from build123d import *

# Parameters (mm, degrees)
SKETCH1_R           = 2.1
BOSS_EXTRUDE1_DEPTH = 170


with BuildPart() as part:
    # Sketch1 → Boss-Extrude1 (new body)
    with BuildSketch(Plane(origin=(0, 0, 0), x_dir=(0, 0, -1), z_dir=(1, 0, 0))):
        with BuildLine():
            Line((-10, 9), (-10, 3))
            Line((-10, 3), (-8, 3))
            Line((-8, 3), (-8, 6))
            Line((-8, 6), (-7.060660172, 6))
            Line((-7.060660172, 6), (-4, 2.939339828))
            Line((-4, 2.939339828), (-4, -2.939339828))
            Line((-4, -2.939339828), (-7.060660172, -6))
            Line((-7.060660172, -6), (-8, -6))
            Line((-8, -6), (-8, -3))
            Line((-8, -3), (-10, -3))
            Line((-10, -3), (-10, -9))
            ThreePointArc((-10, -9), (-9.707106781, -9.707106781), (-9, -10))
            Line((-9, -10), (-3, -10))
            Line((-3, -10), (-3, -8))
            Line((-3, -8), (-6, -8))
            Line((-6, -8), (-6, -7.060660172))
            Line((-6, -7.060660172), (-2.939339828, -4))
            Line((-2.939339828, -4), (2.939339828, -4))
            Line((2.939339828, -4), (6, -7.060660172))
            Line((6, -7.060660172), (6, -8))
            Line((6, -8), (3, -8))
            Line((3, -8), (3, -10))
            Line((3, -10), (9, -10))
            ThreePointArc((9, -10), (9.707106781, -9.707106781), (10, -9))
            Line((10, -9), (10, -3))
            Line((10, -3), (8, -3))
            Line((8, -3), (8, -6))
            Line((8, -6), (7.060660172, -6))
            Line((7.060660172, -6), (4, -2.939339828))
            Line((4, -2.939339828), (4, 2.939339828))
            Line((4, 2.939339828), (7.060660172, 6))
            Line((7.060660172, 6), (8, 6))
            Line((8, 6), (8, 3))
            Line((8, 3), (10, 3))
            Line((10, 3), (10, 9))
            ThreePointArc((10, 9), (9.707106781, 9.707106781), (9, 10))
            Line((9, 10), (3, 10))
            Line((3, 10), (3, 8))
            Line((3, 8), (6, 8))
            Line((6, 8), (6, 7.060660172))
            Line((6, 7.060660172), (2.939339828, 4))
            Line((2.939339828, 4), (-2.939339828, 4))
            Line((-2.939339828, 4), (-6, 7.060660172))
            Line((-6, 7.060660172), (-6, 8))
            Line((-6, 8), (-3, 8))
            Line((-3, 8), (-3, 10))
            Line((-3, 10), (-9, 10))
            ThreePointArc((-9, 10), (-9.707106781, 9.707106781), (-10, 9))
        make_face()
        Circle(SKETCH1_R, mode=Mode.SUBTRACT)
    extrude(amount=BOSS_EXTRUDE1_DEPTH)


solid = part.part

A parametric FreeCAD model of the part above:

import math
import FreeCAD as App
import Part
import Sketcher
from FreeCAD import Vector
Q = App.Units.Quantity

doc = App.newDocument("Part")
params = doc.addObject("Spreadsheet::Sheet", "Params")
for row, (alias, value) in enumerate([
    ("sketch1_radius", "1 mm"),
    ("sketch1_diameter", "4.2 mm"),
    ("sketch1_width", "6 mm"),
    ("sketch1_width2", "3 mm"),
    ("sketch1_width3", "2 mm"),
    ("pad1_length", "170 mm"),
], start=1):
    params.set(f"A{row}", alias)
    params.set(f"B{row}", "=" + value)
    params.setAlias(f"B{row}", alias)

body = doc.addObject("PartDesign::Body", "Body")

sketch1 = body.newObject("Sketcher::SketchObject", "Sketch")
sketch1.AttachmentSupport = (doc.getObject("YZ_Plane"), [""])
sketch1.MapMode = "FlatFace"
sketch1.addGeometry([
    Part.LineSegment(Vector(9, 10, 0), Vector(3, 10, 0)),
    Part.LineSegment(Vector(3, 10, 0), Vector(3, 8, 0)),
    Part.LineSegment(Vector(3, 8, 0), Vector(6, 8, 0)),
    Part.LineSegment(Vector(6, 8, 0), Vector(6, 7.1, 0)),
    Part.LineSegment(Vector(6, 7.1, 0), Vector(2.9, 4, 0)),
    Part.LineSegment(Vector(2.9, 4, 0), Vector(-2.9, 4, 0)),
    Part.LineSegment(Vector(-2.9, 4, 0), Vector(-6, 7.1, 0)),
    Part.LineSegment(Vector(-6, 7.1, 0), Vector(-6, 8, 0)),
    Part.LineSegment(Vector(-6, 8, 0), Vector(-3, 8, 0)),
    Part.LineSegment(Vector(-3, 8, 0), Vector(-3, 10, 0)),
    Part.LineSegment(Vector(-3, 10, 0), Vector(-9, 10, 0)),
    Part.ArcOfCircle(Part.Circle(Vector(-9, 9, 0), Vector(0, 0, 1), 1), math.radians(90), math.radians(180)),
    Part.LineSegment(Vector(-10, 9, 0), Vector(-10, 3, 0)),
    Part.LineSegment(Vector(-10, 3, 0), Vector(-8, 3, 0)),
    Part.LineSegment(Vector(-8, 3, 0), Vector(-8, 6, 0)),
    Part.LineSegment(Vector(-8, 6, 0), Vector(-7.1, 6, 0)),
    Part.LineSegment(Vector(-7.1, 6, 0), Vector(-4, 2.9, 0)),
    Part.LineSegment(Vector(-4, 2.9, 0), Vector(-4, -2.9, 0)),
    Part.LineSegment(Vector(-4, -2.9, 0), Vector(-7.1, -6, 0)),
    Part.LineSegment(Vector(-7.1, -6, 0), Vector(-8, -6, 0)),
    Part.LineSegment(Vector(-8, -6, 0), Vector(-8, -3, 0)),
    Part.LineSegment(Vector(-8, -3, 0), Vector(-10, -3, 0)),
    Part.LineSegment(Vector(-10, -3, 0), Vector(-10, -9, 0)),
    Part.ArcOfCircle(Part.Circle(Vector(-9, -9, 0), Vector(0, 0, 1), 1), math.radians(-180), math.radians(-90)),
    Part.LineSegment(Vector(-9, -10, 0), Vector(-3, -10, 0)),
    Part.LineSegment(Vector(-3, -10, 0), Vector(-3, -8, 0)),
    Part.LineSegment(Vector(-3, -8, 0), Vector(-6, -8, 0)),
    Part.LineSegment(Vector(-6, -8, 0), Vector(-6, -7.1, 0)),
    Part.LineSegment(Vector(-6, -7.1, 0), Vector(-2.9, -4, 0)),
    Part.LineSegment(Vector(-2.9, -4, 0), Vector(2.9, -4, 0)),
    Part.LineSegment(Vector(2.9, -4, 0), Vector(6, -7.1, 0)),
    Part.LineSegment(Vector(6, -7.1, 0), Vector(6, -8, 0)),
    Part.LineSegment(Vector(6, -8, 0), Vector(3, -8, 0)),
    Part.LineSegment(Vector(3, -8, 0), Vector(3, -10, 0)),
    Part.LineSegment(Vector(3, -10, 0), Vector(9, -10, 0)),
    Part.ArcOfCircle(Part.Circle(Vector(9, -9, 0), Vector(0, 0, 1), 1), math.radians(-90), math.radians(0)),
    Part.LineSegment(Vector(10, -9, 0), Vector(10, -3, 0)),
    Part.LineSegment(Vector(10, -3, 0), Vector(8, -3, 0)),
    Part.LineSegment(Vector(8, -3, 0), Vector(8, -6, 0)),
    Part.LineSegment(Vector(8, -6, 0), Vector(7.1, -6, 0)),
    Part.LineSegment(Vector(7.1, -6, 0), Vector(4, -2.9, 0)),
    Part.LineSegment(Vector(4, -2.9, 0), Vector(4, 2.9, 0)),
    Part.LineSegment(Vector(4, 2.9, 0), Vector(7.1, 6, 0)),
    Part.LineSegment(Vector(7.1, 6, 0), Vector(8, 6, 0)),
    Part.LineSegment(Vector(8, 6, 0), Vector(8, 3, 0)),
    Part.LineSegment(Vector(8, 3, 0), Vector(10, 3, 0)),
    Part.LineSegment(Vector(10, 3, 0), Vector(10, 9, 0)),
    Part.ArcOfCircle(Part.Circle(Vector(9, 9, 0), Vector(0, 0, 1), 1), math.radians(0), math.radians(90)),
    Part.Circle(Vector(0, 0, 0), Vector(0, 0, 1), 2.1),
], False)
sketch1.addConstraint([
    Sketcher.Constraint("Coincident", 0, 2, 1, 1),
    Sketcher.Constraint("Coincident", 1, 2, 2, 1),
    Sketcher.Constraint("Coincident", 2, 2, 3, 1),
    Sketcher.Constraint("Coincident", 3, 2, 4, 1),
    Sketcher.Constraint("Coincident", 4, 2, 5, 1),
    Sketcher.Constraint("Coincident", 5, 2, 6, 1),
    Sketcher.Constraint("Coincident", 6, 2, 7, 1),
    Sketcher.Constraint("Coincident", 7, 2, 8, 1),
    Sketcher.Constraint("Coincident", 8, 2, 9, 1),
    Sketcher.Constraint("Coincident", 9, 2, 10, 1),
    Sketcher.Constraint("Tangent", 10, 2, 11, 1),
    Sketcher.Constraint("Tangent", 11, 2, 12, 1),
    Sketcher.Constraint("Coincident", 12, 2, 13, 1),
    Sketcher.Constraint("Coincident", 13, 2, 14, 1),
    Sketcher.Constraint("Coincident", 14, 2, 15, 1),
    Sketcher.Constraint("Coincident", 15, 2, 16, 1),
    Sketcher.Constraint("Coincident", 16, 2, 17, 1),
    Sketcher.Constraint("Coincident", 17, 2, 18, 1),
    Sketcher.Constraint("Coincident", 18, 2, 19, 1),
    Sketcher.Constraint("Coincident", 19, 2, 20, 1),
    Sketcher.Constraint("Coincident", 20, 2, 21, 1),
    Sketcher.Constraint("Coincident", 21, 2, 22, 1),
    Sketcher.Constraint("Tangent", 22, 2, 23, 1),
    Sketcher.Constraint("Tangent", 23, 2, 24, 1),
    Sketcher.Constraint("Coincident", 24, 2, 25, 1),
    Sketcher.Constraint("Coincident", 25, 2, 26, 1),
    Sketcher.Constraint("Coincident", 26, 2, 27, 1),
    Sketcher.Constraint("Coincident", 27, 2, 28, 1),
    Sketcher.Constraint("Coincident", 28, 2, 29, 1),
    Sketcher.Constraint("Coincident", 29, 2, 30, 1),
    Sketcher.Constraint("Coincident", 30, 2, 31, 1),
    Sketcher.Constraint("Coincident", 31, 2, 32, 1),
    Sketcher.Constraint("Coincident", 32, 2, 33, 1),
    Sketcher.Constraint("Coincident", 33, 2, 34, 1),
    Sketcher.Constraint("Tangent", 34, 2, 35, 1),
    Sketcher.Constraint("Tangent", 35, 2, 36, 1),
    Sketcher.Constraint("Coincident", 36, 2, 37, 1),
    Sketcher.Constraint("Coincident", 37, 2, 38, 1),
    Sketcher.Constraint("Coincident", 38, 2, 39, 1),
    Sketcher.Constraint("Coincident", 39, 2, 40, 1),
    Sketcher.Constraint("Coincident", 40, 2, 41, 1),
    Sketcher.Constraint("Coincident", 41, 2, 42, 1),
    Sketcher.Constraint("Coincident", 42, 2, 43, 1),
    Sketcher.Constraint("Coincident", 43, 2, 44, 1),
    Sketcher.Constraint("Coincident", 44, 2, 45, 1),
    Sketcher.Constraint("Coincident", 45, 2, 46, 1),
    Sketcher.Constraint("Tangent", 46, 2, 47, 1),
    Sketcher.Constraint("Tangent", 47, 2, 0, 1),
    Sketcher.Constraint("Horizontal", 0),
    Sketcher.Constraint("Vertical", 1),
    Sketcher.Constraint("Horizontal", 2),
    Sketcher.Constraint("Vertical", 3),
    Sketcher.Constraint("Horizontal", 5),
    Sketcher.Constraint("Vertical", 7),
    Sketcher.Constraint("Horizontal", 8),
    Sketcher.Constraint("Vertical", 9),
    Sketcher.Constraint("Horizontal", 10),
    Sketcher.Constraint("Vertical", 12),
    Sketcher.Constraint("Horizontal", 13),
    Sketcher.Constraint("Vertical", 14),
    Sketcher.Constraint("Horizontal", 15),
    Sketcher.Constraint("Vertical", 17),
    Sketcher.Constraint("Horizontal", 19),
    Sketcher.Constraint("Vertical", 20),
    Sketcher.Constraint("Horizontal", 21),
    Sketcher.Constraint("Vertical", 22),
    Sketcher.Constraint("Horizontal", 24),
    Sketcher.Constraint("Vertical", 25),
    Sketcher.Constraint("Horizontal", 26),
    Sketcher.Constraint("Vertical", 27),
    Sketcher.Constraint("Horizontal", 29),
    Sketcher.Constraint("Vertical", 31),
    Sketcher.Constraint("Horizontal", 32),
    Sketcher.Constraint("Vertical", 33),
    Sketcher.Constraint("Horizontal", 34),
    Sketcher.Constraint("Vertical", 36),
    Sketcher.Constraint("Horizontal", 37),
    Sketcher.Constraint("Vertical", 38),
    Sketcher.Constraint("Horizontal", 39),
    Sketcher.Constraint("Vertical", 41),
    Sketcher.Constraint("Horizontal", 43),
    Sketcher.Constraint("Vertical", 44),
    Sketcher.Constraint("Horizontal", 45),
    Sketcher.Constraint("Vertical", 46),
    Sketcher.Constraint("Coincident", 48, 3, -1, 1),
    Sketcher.Constraint("Equal", 11, 23),
    Sketcher.Constraint("Equal", 23, 35),
    Sketcher.Constraint("Equal", 35, 47),
    Sketcher.Constraint("Symmetric", 11, 3, 35, 3, -1, 1),
    Sketcher.Constraint("Symmetric", 23, 3, 47, 3, -1, 1),
    Sketcher.Constraint("Symmetric", 1, 2, 25, 2, -1, 1),
    Sketcher.Constraint("Symmetric", 3, 2, 27, 2, -1, 1),
    Sketcher.Constraint("Symmetric", 4, 2, 28, 2, -1, 1),
    Sketcher.Constraint("Symmetric", 6, 2, 30, 2, -1, 1),
    Sketcher.Constraint("Symmetric", 8, 2, 32, 2, -1, 1),
    Sketcher.Constraint("Symmetric", 13, 2, 37, 2, -1, 1),
    Sketcher.Constraint("Symmetric", 15, 2, 39, 2, -1, 1),
    Sketcher.Constraint("Symmetric", 16, 2, 40, 2, -1, 1),
    Sketcher.Constraint("Symmetric", 18, 2, 42, 2, -1, 1),
    Sketcher.Constraint("Symmetric", 20, 2, 44, 2, -1, 1),
    Sketcher.Constraint("Symmetric", 23, 3, 35, 3, -2),
    Sketcher.Constraint("Symmetric", 3, 2, 6, 2, -2),
    Sketcher.Constraint("Symmetric", 1, 2, 8, 2, -2),
    Sketcher.Constraint("Symmetric", 20, 2, 37, 2, -2),
    Sketcher.Constraint("Symmetric", 18, 2, 39, 2, -2),
    Sketcher.Constraint("Perpendicular", 4, 6),
    Sketcher.Constraint("Parallel", 6, 16),
    Sketcher.Constraint("Perpendicular", 16, 18),
    Sketcher.Constraint("Perpendicular", 28, 30),
    Sketcher.Constraint("Perpendicular", 40, 42),
    Sketcher.Constraint("Horizontal", 17, 2, 40, 2),
    Sketcher.Constraint("Equal", 45, 1),
    Sketcher.Constraint("Equal", 43, 3),
    Sketcher.Constraint("Equal", 34, 12),
    Sketcher.Constraint("Equal", 32, 14),
    Sketcher.Constraint("Equal", 29, 17),
    Sketcher.Constraint("Equal", 6, 16),
    Sketcher.Constraint("Radius", 11, Q("1 mm")),
    Sketcher.Constraint("Diameter", 48, Q("4.2 mm")),
    Sketcher.Constraint("DistanceX", 0, 2, 0, 1, Q("6 mm")),
    Sketcher.Constraint("DistanceX", 2, 1, 2, 2, Q("3 mm")),
    Sketcher.Constraint("DistanceX", 13, 1, 13, 2, Q("2 mm")),
    Sketcher.Constraint("DistanceX", 11, 3, -1, 1, Q("9 mm")),
    Sketcher.Constraint("DistanceY", -1, 1, 4, 2, Q("4 mm")),
    Sketcher.Constraint("DistanceX", 5, 2, 5, 1, Q("5.87868 mm")),
])
sketch1.setExpression("Constraints[117]", "Params.sketch1_radius")
sketch1.setExpression("Constraints[118]", "Params.sketch1_diameter")
sketch1.setExpression("Constraints[119]", "Params.sketch1_width")
sketch1.setExpression("Constraints[120]", "Params.sketch1_width2")
sketch1.setExpression("Constraints[121]", "Params.sketch1_width3")
pad1 = body.newObject("PartDesign::Pad", "Pad")
pad1.Profile = sketch1
pad1.setExpression("Length", "Params.pad1_length")

doc.recompute()
